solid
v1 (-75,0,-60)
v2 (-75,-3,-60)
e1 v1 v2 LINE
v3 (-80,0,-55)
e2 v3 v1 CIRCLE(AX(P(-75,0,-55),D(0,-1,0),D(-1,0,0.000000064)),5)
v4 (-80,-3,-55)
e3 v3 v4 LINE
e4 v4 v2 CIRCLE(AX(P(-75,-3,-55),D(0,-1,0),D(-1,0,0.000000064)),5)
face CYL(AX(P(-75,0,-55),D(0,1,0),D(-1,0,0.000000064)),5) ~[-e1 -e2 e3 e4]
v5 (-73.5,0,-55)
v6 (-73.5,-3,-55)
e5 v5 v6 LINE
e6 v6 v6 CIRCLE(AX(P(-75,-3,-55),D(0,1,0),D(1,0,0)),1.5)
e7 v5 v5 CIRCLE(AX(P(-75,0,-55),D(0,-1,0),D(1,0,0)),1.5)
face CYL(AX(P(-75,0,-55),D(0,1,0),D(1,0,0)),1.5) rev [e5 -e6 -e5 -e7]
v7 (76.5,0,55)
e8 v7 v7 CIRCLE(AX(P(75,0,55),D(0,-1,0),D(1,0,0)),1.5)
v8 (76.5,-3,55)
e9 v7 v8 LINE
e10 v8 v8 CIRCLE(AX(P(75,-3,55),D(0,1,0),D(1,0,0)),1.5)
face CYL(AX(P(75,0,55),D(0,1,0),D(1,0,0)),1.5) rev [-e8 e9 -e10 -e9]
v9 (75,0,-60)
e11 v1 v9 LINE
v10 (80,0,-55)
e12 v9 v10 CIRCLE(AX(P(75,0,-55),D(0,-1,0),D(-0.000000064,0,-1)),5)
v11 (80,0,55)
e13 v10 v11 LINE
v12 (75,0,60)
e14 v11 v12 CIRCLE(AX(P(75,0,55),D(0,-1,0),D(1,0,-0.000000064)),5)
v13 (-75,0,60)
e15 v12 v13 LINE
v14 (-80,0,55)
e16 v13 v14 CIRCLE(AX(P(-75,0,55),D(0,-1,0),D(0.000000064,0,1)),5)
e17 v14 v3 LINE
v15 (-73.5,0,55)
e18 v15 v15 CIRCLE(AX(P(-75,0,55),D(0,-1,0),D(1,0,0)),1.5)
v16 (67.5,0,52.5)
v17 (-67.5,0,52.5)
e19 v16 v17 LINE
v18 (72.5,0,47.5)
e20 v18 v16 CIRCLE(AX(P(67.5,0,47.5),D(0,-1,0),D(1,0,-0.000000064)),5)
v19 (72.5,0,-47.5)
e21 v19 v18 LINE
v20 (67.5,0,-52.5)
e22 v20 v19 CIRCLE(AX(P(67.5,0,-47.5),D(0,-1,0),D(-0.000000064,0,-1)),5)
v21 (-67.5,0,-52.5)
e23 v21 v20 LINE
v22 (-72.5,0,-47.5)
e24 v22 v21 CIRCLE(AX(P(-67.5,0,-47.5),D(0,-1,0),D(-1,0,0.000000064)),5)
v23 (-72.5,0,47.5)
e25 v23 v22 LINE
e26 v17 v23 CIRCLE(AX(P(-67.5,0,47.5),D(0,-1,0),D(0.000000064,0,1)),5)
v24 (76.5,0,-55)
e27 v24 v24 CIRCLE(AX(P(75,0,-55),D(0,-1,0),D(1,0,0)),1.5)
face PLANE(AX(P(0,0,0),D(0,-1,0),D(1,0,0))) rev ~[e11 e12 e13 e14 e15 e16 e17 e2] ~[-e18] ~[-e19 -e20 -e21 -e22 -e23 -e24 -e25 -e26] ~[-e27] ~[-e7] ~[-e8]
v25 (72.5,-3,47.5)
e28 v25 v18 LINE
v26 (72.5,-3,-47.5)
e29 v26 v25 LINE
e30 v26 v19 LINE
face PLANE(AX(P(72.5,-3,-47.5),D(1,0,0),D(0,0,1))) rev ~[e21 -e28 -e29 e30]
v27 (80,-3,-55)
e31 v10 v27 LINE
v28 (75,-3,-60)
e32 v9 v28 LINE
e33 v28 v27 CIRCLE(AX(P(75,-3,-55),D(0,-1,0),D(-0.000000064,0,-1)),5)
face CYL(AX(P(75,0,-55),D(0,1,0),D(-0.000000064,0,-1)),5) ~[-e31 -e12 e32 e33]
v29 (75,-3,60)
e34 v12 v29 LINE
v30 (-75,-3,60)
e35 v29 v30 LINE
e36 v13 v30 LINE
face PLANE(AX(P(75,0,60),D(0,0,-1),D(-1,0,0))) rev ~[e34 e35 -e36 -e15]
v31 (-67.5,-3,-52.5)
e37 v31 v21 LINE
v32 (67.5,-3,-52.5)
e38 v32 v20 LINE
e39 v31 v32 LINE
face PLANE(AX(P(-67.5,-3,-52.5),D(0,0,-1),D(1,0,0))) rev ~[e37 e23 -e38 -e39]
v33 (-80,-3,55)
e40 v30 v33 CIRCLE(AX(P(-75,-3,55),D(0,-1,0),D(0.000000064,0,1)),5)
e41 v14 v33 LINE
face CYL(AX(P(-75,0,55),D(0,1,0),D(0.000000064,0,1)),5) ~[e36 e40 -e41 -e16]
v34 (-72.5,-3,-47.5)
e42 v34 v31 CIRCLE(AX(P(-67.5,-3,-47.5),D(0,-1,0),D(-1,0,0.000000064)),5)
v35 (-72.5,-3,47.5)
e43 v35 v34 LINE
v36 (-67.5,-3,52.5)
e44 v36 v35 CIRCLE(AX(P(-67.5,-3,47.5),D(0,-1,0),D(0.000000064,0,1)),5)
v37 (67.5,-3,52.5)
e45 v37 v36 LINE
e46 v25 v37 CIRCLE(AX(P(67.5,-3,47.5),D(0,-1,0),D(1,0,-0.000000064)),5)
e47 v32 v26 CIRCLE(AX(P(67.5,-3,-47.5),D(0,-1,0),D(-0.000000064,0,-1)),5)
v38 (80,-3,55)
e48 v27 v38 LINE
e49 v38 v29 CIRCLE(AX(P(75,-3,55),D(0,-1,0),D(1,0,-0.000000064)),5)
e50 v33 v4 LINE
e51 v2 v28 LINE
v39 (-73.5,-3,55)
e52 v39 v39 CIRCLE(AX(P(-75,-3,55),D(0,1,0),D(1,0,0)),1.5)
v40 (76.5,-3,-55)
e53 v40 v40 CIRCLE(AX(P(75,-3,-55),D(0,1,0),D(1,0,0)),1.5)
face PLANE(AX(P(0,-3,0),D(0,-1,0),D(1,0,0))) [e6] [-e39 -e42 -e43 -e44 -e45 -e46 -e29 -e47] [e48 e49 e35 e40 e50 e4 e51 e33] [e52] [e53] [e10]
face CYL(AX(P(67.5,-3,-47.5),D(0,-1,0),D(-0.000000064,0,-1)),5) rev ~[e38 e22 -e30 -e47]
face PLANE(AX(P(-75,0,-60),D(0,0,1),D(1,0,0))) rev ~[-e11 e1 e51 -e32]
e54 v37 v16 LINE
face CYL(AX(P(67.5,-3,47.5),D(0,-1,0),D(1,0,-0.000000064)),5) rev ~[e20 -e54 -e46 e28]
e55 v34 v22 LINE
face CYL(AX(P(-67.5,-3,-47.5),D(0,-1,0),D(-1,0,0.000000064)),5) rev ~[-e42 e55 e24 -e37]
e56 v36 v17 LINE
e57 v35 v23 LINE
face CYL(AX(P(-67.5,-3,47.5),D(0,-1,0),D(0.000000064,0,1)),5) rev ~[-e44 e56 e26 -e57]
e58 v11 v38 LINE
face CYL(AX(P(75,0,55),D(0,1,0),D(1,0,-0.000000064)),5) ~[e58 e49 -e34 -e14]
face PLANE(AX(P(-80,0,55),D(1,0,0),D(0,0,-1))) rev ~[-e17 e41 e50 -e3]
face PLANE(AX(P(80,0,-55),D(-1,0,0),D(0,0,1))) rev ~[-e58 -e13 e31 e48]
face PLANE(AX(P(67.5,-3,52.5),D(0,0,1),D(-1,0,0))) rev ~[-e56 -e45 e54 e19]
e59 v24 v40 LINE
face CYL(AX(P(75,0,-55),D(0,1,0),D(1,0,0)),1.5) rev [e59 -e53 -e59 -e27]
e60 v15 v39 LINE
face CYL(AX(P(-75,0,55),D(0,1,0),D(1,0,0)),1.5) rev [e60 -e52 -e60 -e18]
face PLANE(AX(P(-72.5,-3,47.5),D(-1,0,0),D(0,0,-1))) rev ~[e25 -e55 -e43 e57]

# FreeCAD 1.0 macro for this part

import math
import FreeCAD as App
import Part
import Sketcher
Q = App.Units.Quantity

doc = App.newDocument("Part")
body = doc.addObject("PartDesign::Body", "Body")

# Sketch on XZ plane
sketch1 = body.newObject("Sketcher::SketchObject", "Sketch")
sketch1.AttachmentSupport = (doc.getObject("XZ_Plane"), [""])
sketch1.MapMode = "FlatFace"
sketch1.addGeometry([
    Part.LineSegment(App.Vector(-75, -60, 0), App.Vector(75, -60, 0)),  # 0
    Part.ArcOfCircle(Part.Circle(App.Vector(75, -55, 0), App.Vector(0, 0, 1), 5), math.radians(-90), math.radians(0)),  # 1
    Part.LineSegment(App.Vector(80, -55, 0), App.Vector(80, 55, 0)),  # 2
    Part.ArcOfCircle(Part.Circle(App.Vector(75, 55, 0), App.Vector(0, 0, 1), 5), math.radians(0), math.radians(90)),  # 3
    Part.LineSegment(App.Vector(75, 60, 0), App.Vector(-75, 60, 0)),  # 4
    Part.ArcOfCircle(Part.Circle(App.Vector(-75, 55, 0), App.Vector(0, 0, 1), 5), math.radians(90), math.radians(180)),  # 5
    Part.LineSegment(App.Vector(-80, 55, 0), App.Vector(-80, -55, 0)),  # 6
    Part.ArcOfCircle(Part.Circle(App.Vector(-75, -55, 0), App.Vector(0, 0, 1), 5), math.radians(180), math.radians(270)),  # 7
], False)
sketch1.addConstraint([
    Sketcher.Constraint("Tangent", 0, 2, 1, 1),
    Sketcher.Constraint("Tangent", 1, 2, 2, 1),
    Sketcher.Constraint("Tangent", 2, 2, 3, 1),
    Sketcher.Constraint("Tangent", 3, 2, 4, 1),
    Sketcher.Constraint("Tangent", 4, 2, 5, 1),
    Sketcher.Constraint("Tangent", 5, 2, 6, 1),
    Sketcher.Constraint("Tangent", 6, 2, 7, 1),
    Sketcher.Constraint("Tangent", 7, 2, 0, 1),
    Sketcher.Constraint("Horizontal", 0),
    Sketcher.Constraint("Vertical", 2),
    Sketcher.Constraint("Horizontal", 4),
    Sketcher.Constraint("Vertical", 6),
    Sketcher.Constraint("Equal", 1, 3),
    Sketcher.Constraint("Equal", 3, 5),
    Sketcher.Constraint("Equal", 5, 7),
    Sketcher.Constraint("Symmetric", 1, 3, 5, 3, -1, 1),
    Sketcher.Constraint("Radius", 1, Q("5 mm")),
    Sketcher.Constraint("DistanceX", 0, 1, 0, 2, Q("150 mm")),
    Sketcher.Constraint("DistanceY", 2, 1, 2, 2, Q("110 mm")),
])
pad1 = body.newObject("PartDesign::Pad", "Pad")
pad1.Profile = sketch1
pad1.Length = 3

# Sketch on XZ plane
sketch2 = body.newObject("Sketcher::SketchObject", "Sketch001")
sketch2.AttachmentSupport = (doc.getObject("XZ_Plane"), [""])
sketch2.MapMode = "FlatFace"
sketch2.addGeometry([
    Part.Circle(App.Vector(-75, 55, 0), App.Vector(0, 0, 1), 1.5),
    Part.Circle(App.Vector(75, 55, 0), App.Vector(0, 0, 1), 1.5),
    Part.Circle(App.Vector(75, -55, 0), App.Vector(0, 0, 1), 1.5),
    Part.Circle(App.Vector(-75, -55, 0), App.Vector(0, 0, 1), 1.5),
], False)
sketch2.addConstraint([
    Sketcher.Constraint("Equal", 0, 1),
    Sketcher.Constraint("Equal", 1, 2),
    Sketcher.Constraint("Equal", 2, 3),
    Sketcher.Constraint("Symmetric", 0, 3, 2, 3, -1, 1),
    Sketcher.Constraint("Symmetric", 1, 3, 3, 3, -1, 1),
    Sketcher.Constraint("Symmetric", 0, 3, 1, 3, -2),
    Sketcher.Constraint("Diameter", 0, Q("3 mm")),
    Sketcher.Constraint("DistanceX", 0, 3, -1, 1, Q("75 mm")),
    Sketcher.Constraint("DistanceY", -1, 1, 0, 3, Q("55 mm")),
])
pocket1 = body.newObject("PartDesign::Pocket", "Pocket")
pocket1.Profile = sketch2
pocket1.Length = 25
pocket1.Reversed = True

# Sketch on XZ plane
sketch3 = body.newObject("Sketcher::SketchObject", "Sketch002")
sketch3.AttachmentSupport = (doc.getObject("XZ_Plane"), [""])
sketch3.MapMode = "FlatFace"
sketch3.AttachmentOffset = App.Placement(App.Vector(0, 0, 3), App.Rotation())
sketch3.addGeometry([
    Part.ArcOfCircle(Part.Circle(App.Vector(67.5, 47.5, 0), App.Vector(0, 0, 1), 5), math.radians(0), math.radians(90)),  # 0
    Part.LineSegment(App.Vector(67.5, 52.5, 0), App.Vector(-67.5, 52.5, 0)),  # 1
    Part.ArcOfCircle(Part.Circle(App.Vector(-67.5, 47.5, 0), App.Vector(0, 0, 1), 5), math.radians(90), math.radians(180)),  # 2
    Part.LineSegment(App.Vector(-72.5, 47.5, 0), App.Vector(-72.5, -47.5, 0)),  # 3
    Part.ArcOfCircle(Part.Circle(App.Vector(-67.5, -47.5, 0), App.Vector(0, 0, 1), 5), math.radians(180), math.radians(270)),  # 4
    Part.LineSegment(App.Vector(-67.5, -52.5, 0), App.Vector(67.5, -52.5, 0)),  # 5
    Part.ArcOfCircle(Part.Circle(App.Vector(67.5, -47.5, 0), App.Vector(0, 0, 1), 5), math.radians(-90), math.radians(0)),  # 6
    Part.LineSegment(App.Vector(72.5, -47.5, 0), App.Vector(72.5, 47.5, 0)),  # 7
], False)
sketch3.addConstraint([
    Sketcher.Constraint("Tangent", 0, 2, 1, 1),
    Sketcher.Constraint("Tangent", 1, 2, 2, 1),
    Sketcher.Constraint("Tangent", 2, 2, 3, 1),
    Sketcher.Constraint("Tangent", 3, 2, 4, 1),
    Sketcher.Constraint("Tangent", 4, 2, 5, 1),
    Sketcher.Constraint("Tangent", 5, 2, 6, 1),
    Sketcher.Constraint("Tangent", 6, 2, 7, 1),
    Sketcher.Constraint("Tangent", 7, 2, 0, 1),
    Sketcher.Constraint("Horizontal", 1),
    Sketcher.Constraint("Vertical", 3),
    Sketcher.Constraint("Horizontal", 5),
    Sketcher.Constraint("Vertical", 7),
    Sketcher.Constraint("Equal", 0, 2),
    Sketcher.Constraint("Equal", 2, 4),
    Sketcher.Constraint("Equal", 4, 6),
    Sketcher.Constraint("Symmetric", 0, 3, 4, 3, -1, 1),
    Sketcher.Constraint("Radius", 0, Q("5 mm")),
    Sketcher.Constraint("DistanceX", 1, 2, 1, 1, Q("135 mm")),
    Sketcher.Constraint("DistanceY", 3, 2, 3, 1, Q("95 mm")),
])
pocket2 = body.newObject("PartDesign::Pocket", "Pocket001")
pocket2.Profile = sketch3
pocket2.Length = 3

doc.recompute()
